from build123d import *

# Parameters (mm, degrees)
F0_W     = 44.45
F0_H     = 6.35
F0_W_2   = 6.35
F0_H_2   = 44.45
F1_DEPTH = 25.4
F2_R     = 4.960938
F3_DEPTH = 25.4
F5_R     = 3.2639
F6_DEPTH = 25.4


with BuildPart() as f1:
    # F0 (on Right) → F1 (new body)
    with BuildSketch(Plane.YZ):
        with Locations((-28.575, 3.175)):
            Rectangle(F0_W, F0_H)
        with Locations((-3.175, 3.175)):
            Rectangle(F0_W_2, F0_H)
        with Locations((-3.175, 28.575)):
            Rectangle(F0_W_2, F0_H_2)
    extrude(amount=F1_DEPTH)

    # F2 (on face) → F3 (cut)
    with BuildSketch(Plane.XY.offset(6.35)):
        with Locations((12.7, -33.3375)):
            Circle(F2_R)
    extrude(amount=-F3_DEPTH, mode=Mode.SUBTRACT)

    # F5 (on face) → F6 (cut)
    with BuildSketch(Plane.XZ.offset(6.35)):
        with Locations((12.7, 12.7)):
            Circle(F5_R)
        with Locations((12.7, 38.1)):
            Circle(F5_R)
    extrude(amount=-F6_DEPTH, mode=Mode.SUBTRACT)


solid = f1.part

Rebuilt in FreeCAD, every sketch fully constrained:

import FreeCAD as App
import Part
import Sketcher

V = App.Vector
Q = App.Units.Quantity


def add_polygon(sketch, points):
    """Adds a closed chain of lines whose ends are joined by coincident constraints."""
    first, n = sketch.GeometryCount, len(points)
    for a, b in zip(points, points[1:] + points[:1]):
        sketch.addGeometry(Part.LineSegment(App.Vector(*a, 0), App.Vector(*b, 0)), False)
    for i in range(n):
        sketch.addConstraint(Sketcher.Constraint("Coincident", first + i, 2, first + (i + 1) % n, 1))

doc = App.newDocument("Part")
params = doc.addObject("Spreadsheet::Sheet", "Params")
for row, (alias, value) in enumerate([
    ("sketch1_width", "2 in"),
    ("sketch1_width2", "0.25 in"),
    ("pad1_length", "1 in"),
    ("sketch2_diameter", "0.390625 in"),
    ("pocket1_length", "1 in"),
    ("sketch3_diameter", "0.257 in"),
    ("pocket2_length", "1 in"),
], start=1):
    params.set(f"A{row}", alias)
    params.set(f"B{row}", "=" + value)
    params.setAlias(f"B{row}", alias)

body = doc.addObject("PartDesign::Body", "Body")

sketch1 = body.newObject("Sketcher::SketchObject", "Sketch")
sketch1.AttachmentSupport = (doc.getObject("YZ_Plane"), [""])
sketch1.MapMode = "FlatFace"
add_polygon(sketch1, [(-51, 6), (-51, 0), (0, 0), (0, 51), (-6, 51), (-6, 6)])
sketch1.addConstraint([
    Sketcher.Constraint("Vertical", 0),
    Sketcher.Constraint("Horizontal", 1),
    Sketcher.Constraint("Vertical", 2),
    Sketcher.Constraint("Horizontal", 3),
    Sketcher.Constraint("Vertical", 4),
    Sketcher.Constraint("Horizontal", 5),
    Sketcher.Constraint("Coincident", 1, 2, -1, 1),
    Sketcher.Constraint("Equal", 3, 0),
    Sketcher.Constraint("Equal", 1, 2),
    Sketcher.Constraint("DistanceX", 1, 1, 1, 2, Q("2 in")),
    Sketcher.Constraint("DistanceX", 3, 2, 3, 1, Q("0.25 in")),
])
sketch1.setExpression("Constraints[15]", "Params.sketch1_width")
sketch1.setExpression("Constraints[16]", "Params.sketch1_width2")
pad1 = body.newObject("PartDesign::Pad", "Pad")
pad1.Profile = sketch1
pad1.setExpression("Length", "Params.pad1_length")

sketch2 = body.newObject("Sketcher::SketchObject", "Sketch001")
sketch2.AttachmentSupport = (doc.getObject("XY_Plane"), [""])
sketch2.MapMode = "FlatFace"
sketch2.AttachmentOffset = App.Placement(V(0, 0, 0.25 * 25.4), App.Rotation())
sketch2.addGeometry(Part.Circle(V(12.7, -33.3, 0), V(0, 0, 1), 5), False)
sketch2.addConstraint([
    Sketcher.Constraint("Diameter", 0, Q("0.390625 in")),
    Sketcher.Constraint("DistanceX", -1, 1, 0, 3, Q("0.5 in")),
    Sketcher.Constraint("DistanceY", 0, 3, -1, 1, Q("1.3125 in")),
])
sketch2.setExpression("Constraints[0]", "Params.sketch2_diameter")
pocket1 = body.newObject("PartDesign::Pocket", "Pocket")
pocket1.Profile = sketch2
pocket1.setExpression("Length", "Params.pocket1_length")

sketch3 = body.newObject("Sketcher::SketchObject", "Sketch002")
sketch3.AttachmentSupport = (doc.getObject("XZ_Plane"), [""])
sketch3.MapMode = "FlatFace"
sketch3.AttachmentOffset = App.Placement(V(0, 0, 0.25 * 25.4), App.Rotation())
sketch3.addGeometry([
    Part.Circle(V(12.7, 12.7, 0), V(0, 0, 1), 3.3),
    Part.Circle(V(12.7, 38.1, 0), V(0, 0, 1), 3.3),
], False)
sketch3.addConstraint([
    Sketcher.Constraint("Equal", 0, 1),
    Sketcher.Constraint("Vertical", 0, 3, 1, 3),
    Sketcher.Constraint("Diameter", 0, Q("0.257 in")),
    Sketcher.Constraint("DistanceY", 0, 3, 1, 3, Q("1 in")),
    Sketcher.Constraint("DistanceX", -1, 1, 0, 3, Q("0.5 in")),
    Sketcher.Constraint("DistanceY", -1, 1, 0, 3, Q("0.5 in")),
])
sketch3.setExpression("Constraints[2]", "Params.sketch3_diameter")
pocket2 = body.newObject("PartDesign::Pocket", "Pocket001")
pocket2.Profile = sketch3
pocket2.setExpression("Length", "Params.pocket2_length")

doc.recompute()
